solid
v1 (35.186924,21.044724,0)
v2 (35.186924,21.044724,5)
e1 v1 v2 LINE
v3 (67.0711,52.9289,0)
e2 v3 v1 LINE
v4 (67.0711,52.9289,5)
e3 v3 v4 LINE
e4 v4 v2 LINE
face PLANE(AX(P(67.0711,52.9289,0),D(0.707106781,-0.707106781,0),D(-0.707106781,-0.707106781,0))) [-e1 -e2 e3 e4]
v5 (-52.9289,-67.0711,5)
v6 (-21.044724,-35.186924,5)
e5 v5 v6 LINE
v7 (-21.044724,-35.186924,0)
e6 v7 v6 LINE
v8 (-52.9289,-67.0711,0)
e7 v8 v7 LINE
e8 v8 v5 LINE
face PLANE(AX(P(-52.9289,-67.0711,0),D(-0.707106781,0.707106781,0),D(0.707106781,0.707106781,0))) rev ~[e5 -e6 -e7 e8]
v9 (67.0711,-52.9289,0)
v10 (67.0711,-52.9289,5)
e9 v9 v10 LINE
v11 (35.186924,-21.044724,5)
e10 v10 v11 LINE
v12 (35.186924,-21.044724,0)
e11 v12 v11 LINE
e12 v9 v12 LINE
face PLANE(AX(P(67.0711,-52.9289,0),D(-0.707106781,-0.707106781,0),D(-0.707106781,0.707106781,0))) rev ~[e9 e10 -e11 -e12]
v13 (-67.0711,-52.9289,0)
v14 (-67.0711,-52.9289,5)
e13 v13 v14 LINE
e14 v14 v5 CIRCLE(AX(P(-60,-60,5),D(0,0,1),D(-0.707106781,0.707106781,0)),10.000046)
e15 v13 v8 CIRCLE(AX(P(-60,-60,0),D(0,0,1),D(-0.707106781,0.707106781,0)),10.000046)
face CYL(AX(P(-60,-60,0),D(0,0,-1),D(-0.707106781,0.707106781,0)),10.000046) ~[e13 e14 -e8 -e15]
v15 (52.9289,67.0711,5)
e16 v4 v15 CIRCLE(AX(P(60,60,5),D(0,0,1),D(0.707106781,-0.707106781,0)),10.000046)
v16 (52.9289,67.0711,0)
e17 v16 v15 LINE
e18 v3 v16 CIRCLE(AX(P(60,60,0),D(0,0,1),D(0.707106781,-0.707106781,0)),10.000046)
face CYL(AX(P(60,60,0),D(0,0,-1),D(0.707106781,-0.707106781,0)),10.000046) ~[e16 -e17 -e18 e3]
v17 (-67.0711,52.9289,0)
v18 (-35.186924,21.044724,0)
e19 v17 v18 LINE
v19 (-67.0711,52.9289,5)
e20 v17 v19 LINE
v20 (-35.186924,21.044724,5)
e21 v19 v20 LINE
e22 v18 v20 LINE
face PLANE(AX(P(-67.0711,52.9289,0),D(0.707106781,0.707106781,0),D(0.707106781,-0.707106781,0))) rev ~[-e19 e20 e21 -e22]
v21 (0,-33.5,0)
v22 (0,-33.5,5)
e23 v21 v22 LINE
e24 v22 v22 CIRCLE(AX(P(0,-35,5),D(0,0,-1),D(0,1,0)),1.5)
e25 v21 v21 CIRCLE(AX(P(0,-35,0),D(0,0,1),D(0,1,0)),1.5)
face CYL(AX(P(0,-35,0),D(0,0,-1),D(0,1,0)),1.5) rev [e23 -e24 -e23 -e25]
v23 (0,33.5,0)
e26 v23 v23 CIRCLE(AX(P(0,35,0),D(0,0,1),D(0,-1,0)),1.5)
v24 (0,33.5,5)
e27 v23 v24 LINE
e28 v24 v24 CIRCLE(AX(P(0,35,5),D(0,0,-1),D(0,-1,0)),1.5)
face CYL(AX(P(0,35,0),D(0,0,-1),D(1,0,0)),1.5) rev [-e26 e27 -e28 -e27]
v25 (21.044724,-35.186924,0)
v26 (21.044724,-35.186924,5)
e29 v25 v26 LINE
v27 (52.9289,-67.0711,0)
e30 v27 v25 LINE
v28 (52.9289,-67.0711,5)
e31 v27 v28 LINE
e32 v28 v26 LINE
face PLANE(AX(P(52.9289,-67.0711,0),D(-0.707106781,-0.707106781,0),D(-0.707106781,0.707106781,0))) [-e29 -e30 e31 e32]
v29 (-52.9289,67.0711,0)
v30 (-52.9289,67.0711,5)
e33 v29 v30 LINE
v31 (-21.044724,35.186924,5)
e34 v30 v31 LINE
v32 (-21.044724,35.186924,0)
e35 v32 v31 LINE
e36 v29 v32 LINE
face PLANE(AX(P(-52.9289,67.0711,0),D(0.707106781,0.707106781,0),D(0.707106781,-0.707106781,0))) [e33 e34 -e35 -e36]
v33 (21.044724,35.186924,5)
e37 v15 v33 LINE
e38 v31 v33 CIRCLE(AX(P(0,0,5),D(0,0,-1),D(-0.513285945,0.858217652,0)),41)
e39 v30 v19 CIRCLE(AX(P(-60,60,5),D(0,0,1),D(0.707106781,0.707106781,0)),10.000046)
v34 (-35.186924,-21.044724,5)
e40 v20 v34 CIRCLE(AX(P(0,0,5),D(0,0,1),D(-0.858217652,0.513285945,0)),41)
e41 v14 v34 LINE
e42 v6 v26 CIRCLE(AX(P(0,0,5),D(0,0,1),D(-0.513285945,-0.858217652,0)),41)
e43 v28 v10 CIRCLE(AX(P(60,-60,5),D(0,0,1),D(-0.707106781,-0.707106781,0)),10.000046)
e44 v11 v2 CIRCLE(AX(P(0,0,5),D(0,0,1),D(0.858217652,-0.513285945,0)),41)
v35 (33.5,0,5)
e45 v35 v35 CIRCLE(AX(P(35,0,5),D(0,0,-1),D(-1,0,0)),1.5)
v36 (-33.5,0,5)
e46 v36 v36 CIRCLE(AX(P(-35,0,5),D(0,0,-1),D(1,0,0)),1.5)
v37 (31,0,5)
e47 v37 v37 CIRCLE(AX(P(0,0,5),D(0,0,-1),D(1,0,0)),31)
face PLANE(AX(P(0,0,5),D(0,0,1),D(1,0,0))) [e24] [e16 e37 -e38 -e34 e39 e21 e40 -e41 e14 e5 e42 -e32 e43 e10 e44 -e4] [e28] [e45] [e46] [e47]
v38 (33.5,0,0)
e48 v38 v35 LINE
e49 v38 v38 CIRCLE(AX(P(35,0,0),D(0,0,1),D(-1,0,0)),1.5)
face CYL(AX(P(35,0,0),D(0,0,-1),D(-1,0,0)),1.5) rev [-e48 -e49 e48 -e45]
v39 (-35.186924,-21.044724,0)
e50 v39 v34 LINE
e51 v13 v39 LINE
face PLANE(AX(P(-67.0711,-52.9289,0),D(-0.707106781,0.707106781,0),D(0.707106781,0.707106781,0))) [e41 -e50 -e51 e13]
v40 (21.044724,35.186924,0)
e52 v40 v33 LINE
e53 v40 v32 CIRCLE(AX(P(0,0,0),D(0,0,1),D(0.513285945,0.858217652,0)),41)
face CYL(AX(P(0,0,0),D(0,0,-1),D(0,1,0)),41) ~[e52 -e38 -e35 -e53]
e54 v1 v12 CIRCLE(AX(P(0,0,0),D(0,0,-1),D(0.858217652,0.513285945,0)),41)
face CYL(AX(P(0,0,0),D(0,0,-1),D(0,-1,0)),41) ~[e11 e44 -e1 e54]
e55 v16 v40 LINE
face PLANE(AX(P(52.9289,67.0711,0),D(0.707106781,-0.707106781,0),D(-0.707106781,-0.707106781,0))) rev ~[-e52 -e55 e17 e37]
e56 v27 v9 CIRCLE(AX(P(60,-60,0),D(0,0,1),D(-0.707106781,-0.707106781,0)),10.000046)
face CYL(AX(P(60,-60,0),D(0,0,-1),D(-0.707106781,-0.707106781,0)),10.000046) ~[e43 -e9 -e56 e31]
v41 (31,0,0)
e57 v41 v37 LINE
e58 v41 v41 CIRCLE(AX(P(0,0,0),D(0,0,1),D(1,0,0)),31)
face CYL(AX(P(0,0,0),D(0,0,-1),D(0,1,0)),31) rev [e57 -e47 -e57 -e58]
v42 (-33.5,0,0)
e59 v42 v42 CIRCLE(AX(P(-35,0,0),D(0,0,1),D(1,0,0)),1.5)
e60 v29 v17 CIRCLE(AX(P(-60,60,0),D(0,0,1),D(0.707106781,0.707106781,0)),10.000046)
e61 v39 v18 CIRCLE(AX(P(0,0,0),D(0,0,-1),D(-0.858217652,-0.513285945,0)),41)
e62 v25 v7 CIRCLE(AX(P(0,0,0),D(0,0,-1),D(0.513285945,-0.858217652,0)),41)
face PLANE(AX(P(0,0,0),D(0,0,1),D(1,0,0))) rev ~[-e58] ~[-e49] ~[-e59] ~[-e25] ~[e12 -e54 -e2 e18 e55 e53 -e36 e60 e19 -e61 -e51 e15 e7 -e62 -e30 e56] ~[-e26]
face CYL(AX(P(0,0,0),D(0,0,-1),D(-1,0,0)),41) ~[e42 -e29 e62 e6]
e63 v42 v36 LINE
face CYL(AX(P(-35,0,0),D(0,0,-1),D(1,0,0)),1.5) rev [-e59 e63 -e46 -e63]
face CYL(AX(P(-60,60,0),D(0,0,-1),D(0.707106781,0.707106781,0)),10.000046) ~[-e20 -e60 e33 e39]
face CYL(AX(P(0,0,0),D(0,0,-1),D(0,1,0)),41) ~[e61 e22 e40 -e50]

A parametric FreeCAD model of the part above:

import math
import FreeCAD as App
import Part
import Sketcher
Q = App.Units.Quantity

doc = App.newDocument("Part")
params = doc.addObject("Spreadsheet::Sheet", "Params")
for row, (alias, value) in enumerate([
    ("sketch1_radius", "10 mm"),
    ("sketch1_radius2", "31 mm"),
    ("sketch1_radius3", "1.5 mm"),
    ("sketch1_radius4", "41 mm"),
    ("pad1_length", "5 mm"),
], start=1):
    params.set(f"A{row}", alias)
    params.set(f"B{row}", "=" + value)
    params.setAlias(f"B{row}", alias)

body = doc.addObject("PartDesign::Body", "Body")

# Sketch on XY plane
sketch1 = doc.addObject("Sketcher::SketchObject", "Sketch")
body.addObject(sketch1)
sketch1.AttachmentSupport = (doc.XY_Plane, [""])
sketch1.MapMode = "FlatFace"
sketch1.addGeometry([
    Part.LineSegment(App.Vector(-21, 35.2, 0), App.Vector(-52.9, 67.1, 0)),  # 0
    Part.ArcOfCircle(Part.Circle(App.Vector(-60, 60, 0), App.Vector(0, 0, 1), 10), math.radians(45), math.radians(225)),  # 1
    Part.LineSegment(App.Vector(-67.1, 52.9, 0), App.Vector(-35.2, 21, 0)),  # 2
    Part.ArcOfCircle(Part.Circle(App.Vector(0, 0, 0), App.Vector(0, 0, 1), 41), math.radians(149), math.radians(180)),  # 3
    Part.LineSegment(App.Vector(-41, 0, 0), App.Vector(-36.5, 0, 0)),  # 4
    Part.ArcOfCircle(Part.Circle(App.Vector(-35, 0, 0), App.Vector(0, 0, 1), 1.5), math.radians(0), math.radians(180)),  # 5
    Part.LineSegment(App.Vector(-33.5, 0, 0), App.Vector(-31, 0, 0)),  # 6
    Part.ArcOfCircle(Part.Circle(App.Vector(0, 0, 0), App.Vector(0, 0, 1), 31), math.radians(90), math.radians(180)),  # 7
    Part.LineSegment(App.Vector(0, 31, 0), App.Vector(0, 33.5, 0)),  # 8
    Part.ArcOfCircle(Part.Circle(App.Vector(0, 35, 0), App.Vector(0, 0, 1), 1.5), math.radians(90), math.radians(270)),  # 9
    Part.LineSegment(App.Vector(0, 36.5, 0), App.Vector(0, 41, 0)),  # 10
    Part.ArcOfCircle(Part.Circle(App.Vector(0, 0, 0), App.Vector(0, 0, 1), 41), math.radians(90), math.radians(121)),  # 11
], False)
sketch1.addConstraint([
    Sketcher.Constraint("Tangent", 0, 2, 1, 1),
    Sketcher.Constraint("Tangent", 1, 2, 2, 1),
    Sketcher.Constraint("Coincident", 2, 2, 3, 1),
    Sketcher.Constraint("Coincident", 3, 2, 4, 1),
    Sketcher.Constraint("Coincident", 4, 2, 5, 2),
    Sketcher.Constraint("Coincident", 5, 1, 6, 1),
    Sketcher.Constraint("Coincident", 6, 2, 7, 2),
    Sketcher.Constraint("Coincident", 7, 1, 8, 1),
    Sketcher.Constraint("Coincident", 8, 2, 9, 2),
    Sketcher.Constraint("Coincident", 9, 1, 10, 1),
    Sketcher.Constraint("Coincident", 10, 2, 11, 1),
    Sketcher.Constraint("Coincident", 11, 2, 0, 1),
    Sketcher.Constraint("Horizontal", 4),
    Sketcher.Constraint("Horizontal", 6),
    Sketcher.Constraint("Vertical", 8),
    Sketcher.Constraint("Vertical", 10),
    Sketcher.Constraint("Coincident", 3, 3, -1, 1),
    Sketcher.Constraint("Coincident", 7, 3, -1, 1),
    Sketcher.Constraint("Coincident", 11, 3, -1, 1),
    Sketcher.Constraint("Equal", 5, 9),
    Sketcher.Constraint("Equal", 3, 11),
    Sketcher.Constraint("PointOnObject", 5, 3, -1),
    Sketcher.Constraint("PointOnObject", 9, 3, -2),
    Sketcher.Constraint("PointOnObject", 3, 2, -1),
    Sketcher.Constraint("PointOnObject", 5, 1, -1),
    Sketcher.Constraint("PointOnObject", 7, 1, -2),
    Sketcher.Constraint("PointOnObject", 9, 1, -2),
    Sketcher.Constraint("Parallel", 0, 2),
    Sketcher.Constraint("Equal", 6, 8),
    Sketcher.Constraint("Equal", 0, 2),
    Sketcher.Constraint("Radius", 1, Q("10 mm")),
    Sketcher.Constraint("Radius", 7, Q("31 mm")),
    Sketcher.Constraint("Radius", 5, Q("1.5 mm")),
    Sketcher.Constraint("DistanceX", 1, 3, -1, 1, Q("60 mm")),
    Sketcher.Constraint("DistanceY", -1, 1, 1, 3, Q("60 mm")),
    Sketcher.Constraint("DistanceX", 5, 3, -1, 1, Q("35 mm")),
    Sketcher.Constraint("Radius", 3, Q("41 mm")),
])
sketch1.setExpression("Constraints[30]", "Params.sketch1_radius")
sketch1.setExpression("Constraints[31]", "Params.sketch1_radius2")
sketch1.setExpression("Constraints[32]", "Params.sketch1_radius3")
sketch1.setExpression("Constraints[36]", "Params.sketch1_radius4")
pad1 = doc.addObject("PartDesign::Pad", "Pad")
body.addObject(pad1)
pad1.Profile = sketch1
pad1.setExpression("Length", "Params.pad1_length")
doc.recompute()

polarpattern = doc.addObject("PartDesign::PolarPattern", "PolarPattern")
body.addObject(polarpattern)
polarpattern.Originals = [pad1]
polarpattern.Axis = (doc.Z_Axis, [""])
polarpattern.Angle = 360
polarpattern.Occurrences = 4
body.Tip = polarpattern

doc.recompute()
